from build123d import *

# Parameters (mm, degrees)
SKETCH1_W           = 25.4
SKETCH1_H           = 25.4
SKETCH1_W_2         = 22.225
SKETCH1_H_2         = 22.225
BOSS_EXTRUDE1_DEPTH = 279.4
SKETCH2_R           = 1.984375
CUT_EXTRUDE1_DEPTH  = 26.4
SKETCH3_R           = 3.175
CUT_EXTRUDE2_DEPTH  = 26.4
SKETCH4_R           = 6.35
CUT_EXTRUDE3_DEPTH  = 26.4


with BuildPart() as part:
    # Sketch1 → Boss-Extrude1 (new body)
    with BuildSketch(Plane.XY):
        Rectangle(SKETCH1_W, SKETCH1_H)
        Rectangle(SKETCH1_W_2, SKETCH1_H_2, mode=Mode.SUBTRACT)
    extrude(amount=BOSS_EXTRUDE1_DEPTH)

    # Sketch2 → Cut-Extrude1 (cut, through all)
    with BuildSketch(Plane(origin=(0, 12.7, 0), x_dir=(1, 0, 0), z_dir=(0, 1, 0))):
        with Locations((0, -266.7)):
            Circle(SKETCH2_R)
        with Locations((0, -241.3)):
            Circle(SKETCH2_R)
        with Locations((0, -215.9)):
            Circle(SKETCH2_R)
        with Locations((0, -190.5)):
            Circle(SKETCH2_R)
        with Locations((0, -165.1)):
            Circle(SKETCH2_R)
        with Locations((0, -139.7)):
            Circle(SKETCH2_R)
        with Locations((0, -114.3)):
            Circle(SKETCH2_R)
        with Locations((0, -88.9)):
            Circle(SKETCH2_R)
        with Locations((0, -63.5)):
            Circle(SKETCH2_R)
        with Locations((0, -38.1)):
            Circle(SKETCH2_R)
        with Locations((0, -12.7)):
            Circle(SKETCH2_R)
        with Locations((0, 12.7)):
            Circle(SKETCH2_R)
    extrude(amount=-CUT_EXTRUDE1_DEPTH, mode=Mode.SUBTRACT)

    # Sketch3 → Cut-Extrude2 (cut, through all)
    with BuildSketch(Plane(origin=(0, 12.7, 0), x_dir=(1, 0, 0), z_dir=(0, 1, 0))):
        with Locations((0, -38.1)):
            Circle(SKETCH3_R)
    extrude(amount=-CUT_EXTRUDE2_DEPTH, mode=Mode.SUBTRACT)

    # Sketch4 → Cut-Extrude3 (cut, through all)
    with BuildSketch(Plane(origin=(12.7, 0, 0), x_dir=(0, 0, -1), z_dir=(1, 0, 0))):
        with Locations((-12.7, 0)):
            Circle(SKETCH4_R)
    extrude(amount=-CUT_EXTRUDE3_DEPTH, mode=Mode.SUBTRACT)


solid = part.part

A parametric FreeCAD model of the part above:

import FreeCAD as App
import Part
import Sketcher
Q = App.Units.Quantity


def add_polygon(sketch, points):
    """Adds a closed chain of lines whose ends are joined by coincident constraints."""
    first, n = sketch.GeometryCount, len(points)
    for a, b in zip(points, points[1:] + points[:1]):
        sketch.addGeometry(Part.LineSegment(App.Vector(*a, 0), App.Vector(*b, 0)), False)
    for i in range(n):
        sketch.addConstraint(Sketcher.Constraint("Coincident", first + i, 2, first + (i + 1) % n, 1))

doc = App.newDocument("Part")
body = doc.addObject("PartDesign::Body", "Body")

# Sketch on XY plane
sketch1 = doc.addObject("Sketcher::SketchObject", "Sketch")
body.addObject(sketch1)
sketch1.AttachmentSupport = (doc.XY_Plane, [""])
sketch1.MapMode = "FlatFace"
add_polygon(sketch1, [(-12.7, 12.7), (-12.7, -12.7), (12.7, -12.7), (12.7, 12.7)])  # lines 0-3
add_polygon(sketch1, [(11.1125, -11.1125), (-11.1125, -11.1125), (-11.1125, 11.1125), (11.1125, 11.1125)])  # lines 4-7
sketch1.addConstraint(Sketcher.Constraint("Vertical", 0))
sketch1.addConstraint(Sketcher.Constraint("Horizontal", 1))
sketch1.addConstraint(Sketcher.Constraint("Vertical", 2))
sketch1.addConstraint(Sketcher.Constraint("Horizontal", 3))
sketch1.addConstraint(Sketcher.Constraint("Horizontal", 4))
sketch1.addConstraint(Sketcher.Constraint("Vertical", 5))
sketch1.addConstraint(Sketcher.Constraint("Horizontal", 6))
sketch1.addConstraint(Sketcher.Constraint("Vertical", 7))
sketch1.addConstraint(Sketcher.Constraint("Symmetric", 0, 2, 2, 2, -1, 1))
sketch1.addConstraint(Sketcher.Constraint("Symmetric", 4, 2, 6, 2, -1, 1))
sketch1.addConstraint(Sketcher.Constraint("Equal", 3, 0))
sketch1.addConstraint(Sketcher.Constraint("Equal", 6, 5))
sketch1.addConstraint(Sketcher.Constraint("DistanceX", 1, 1, 1, 2, Q("1 in")))
sketch1.addConstraint(Sketcher.Constraint("DistanceX", 4, 2, 4, 1, Q("0.875 in")))
pad1 = doc.addObject("PartDesign::Pad", "Pad")
body.addObject(pad1)
pad1.Profile = sketch1
pad1.Length = Q("11 in")

# Sketch on XZ plane
sketch2 = doc.addObject("Sketcher::SketchObject", "Sketch001")
body.addObject(sketch2)
sketch2.AttachmentSupport = (doc.XZ_Plane, [""])
sketch2.MapMode = "FlatFace"
sketch2.AttachmentOffset = App.Placement(App.Vector(0, 0, -0.5 * 25.4), App.Rotation())
sketch2.addGeometry(Part.Circle(App.Vector(0, 266.7, 0), App.Vector(0, 0, 1), 1.984375), False)
sketch2.addGeometry(Part.Circle(App.Vector(0, 241.3, 0), App.Vector(0, 0, 1), 1.984375), False)
sketch2.addGeometry(Part.Circle(App.Vector(0, 215.9, 0), App.Vector(0, 0, 1), 1.984375), False)
sketch2.addGeometry(Part.Circle(App.Vector(0, 190.5, 0), App.Vector(0, 0, 1), 1.984375), False)
sketch2.addGeometry(Part.Circle(App.Vector(0, 165.1, 0), App.Vector(0, 0, 1), 1.984375), False)
sketch2.addGeometry(Part.Circle(App.Vector(0, 139.7, 0), App.Vector(0, 0, 1), 1.984375), False)
sketch2.addGeometry(Part.Circle(App.Vector(0, 114.3, 0), App.Vector(0, 0, 1), 1.984375), False)
sketch2.addGeometry(Part.Circle(App.Vector(0, 88.9, 0), App.Vector(0, 0, 1), 1.984375), False)
sketch2.addGeometry(Part.Circle(App.Vector(0, 63.5, 0), App.Vector(0, 0, 1), 1.984375), False)
sketch2.addGeometry(Part.Circle(App.Vector(0, 38.1, 0), App.Vector(0, 0, 1), 1.984375), False)
sketch2.addGeometry(Part.Circle(App.Vector(0, 12.7, 0), App.Vector(0, 0, 1), 1.984375), False)
sketch2.addGeometry(Part.Circle(App.Vector(0, -12.7, 0), App.Vector(0, 0, 1), 1.984375), False)
sketch2.addConstraint(Sketcher.Constraint("Equal", 0, 1))
sketch2.addConstraint(Sketcher.Constraint("Equal", 1, 2))
sketch2.addConstraint(Sketcher.Constraint("Equal", 2, 3))
sketch2.addConstraint(Sketcher.Constraint("Equal", 3, 4))
sketch2.addConstraint(Sketcher.Constraint("Equal", 4, 5))
sketch2.addConstraint(Sketcher.Constraint("Equal", 5, 6))
sketch2.addConstraint(Sketcher.Constraint("Equal", 6, 7))
sketch2.addConstraint(Sketcher.Constraint("Equal", 7, 8))
sketch2.addConstraint(Sketcher.Constraint("Equal", 8, 9))
sketch2.addConstraint(Sketcher.Constraint("Equal", 9, 10))
sketch2.addConstraint(Sketcher.Constraint("Equal", 10, 11))
sketch2.addConstraint(Sketcher.Constraint("Symmetric", 10, 3, 11, 3, -1, 1))
sketch2.addConstraint(Sketcher.Constraint("PointOnObject", 0, 3, -2))
sketch2.addConstraint(Sketcher.Constraint("PointOnObject", 1, 3, -2))
sketch2.addConstraint(Sketcher.Constraint("PointOnObject", 2, 3, -2))
sketch2.addConstraint(Sketcher.Constraint("PointOnObject", 3, 3, -2))
sketch2.addConstraint(Sketcher.Constraint("PointOnObject", 4, 3, -2))
sketch2.addConstraint(Sketcher.Constraint("PointOnObject", 5, 3, -2))
sketch2.addConstraint(Sketcher.Constraint("PointOnObject", 6, 3, -2))
sketch2.addConstraint(Sketcher.Constraint("PointOnObject", 7, 3, -2))
sketch2.addConstraint(Sketcher.Constraint("PointOnObject", 8, 3, -2))
sketch2.addConstraint(Sketcher.Constraint("PointOnObject", 9, 3, -2))
sketch2.addConstraint(Sketcher.Constraint("PointOnObject", 10, 3, -2))
sketch2.addConstraint(Sketcher.Constraint("Diameter", 0, Q("0.15625 in")))
sketch2.addConstraint(Sketcher.Constraint("DistanceY", 1, 3, 0, 3, Q("1 in")))
sketch2.addConstraint(Sketcher.Constraint("DistanceY", 2, 3, 1, 3, Q("1 in")))
sketch2.addConstraint(Sketcher.Constraint("DistanceY", 3, 3, 2, 3, Q("1 in")))
sketch2.addConstraint(Sketcher.Constraint("DistanceY", 4, 3, 3, 3, Q("1 in")))
sketch2.addConstraint(Sketcher.Constraint("DistanceY", 5, 3, 4, 3, Q("1 in")))
sketch2.addConstraint(Sketcher.Constraint("DistanceY", 6, 3, 5, 3, Q("1 in")))
sketch2.addConstraint(Sketcher.Constraint("DistanceY", 7, 3, 6, 3, Q("1 in")))
sketch2.addConstraint(Sketcher.Constraint("DistanceY", 8, 3, 7, 3, Q("1 in")))
sketch2.addConstraint(Sketcher.Constraint("DistanceY", 9, 3, 8, 3, Q("1 in")))
sketch2.addConstraint(Sketcher.Constraint("DistanceY", 10, 3, 9, 3, Q("1 in")))
sketch2.addConstraint(Sketcher.Constraint("DistanceY", 11, 3, 10, 3, Q("1 in")))
pocket1 = doc.addObject("PartDesign::Pocket", "Pocket")
body.addObject(pocket1)
pocket1.Profile = sketch2
pocket1.Type = "ThroughAll"
pocket1.Reversed = True

# Sketch on XZ plane
sketch3 = doc.addObject("Sketcher::SketchObject", "Sketch002")
body.addObject(sketch3)
sketch3.AttachmentSupport = (doc.XZ_Plane, [""])
sketch3.MapMode = "FlatFace"
sketch3.AttachmentOffset = App.Placement(App.Vector(0, 0, -0.5 * 25.4), App.Rotation())
sketch3.addGeometry(Part.Circle(App.Vector(0, 38.1, 0), App.Vector(0, 0, 1), 3.175), False)
sketch3.addConstraint(Sketcher.Constraint("PointOnObject", 0, 3, -2))
sketch3.addConstraint(Sketcher.Constraint("Diameter", 0, Q("0.25 in")))
sketch3.addConstraint(Sketcher.Constraint("DistanceY", -1, 1, 0, 3, Q("1.5 in")))
pocket2 = doc.addObject("PartDesign::Pocket", "Pocket001")
body.addObject(pocket2)
pocket2.Profile = sketch3
pocket2.Type = "ThroughAll"
pocket2.Reversed = True

# Sketch on YZ plane
sketch4 = doc.addObject("Sketcher::SketchObject", "Sketch003")
body.addObject(sketch4)
sketch4.AttachmentSupport = (doc.YZ_Plane, [""])
sketch4.MapMode = "FlatFace"
sketch4.AttachmentOffset = App.Placement(App.Vector(0, 0, 0.5 * 25.4), App.Rotation())
sketch4.addGeometry(Part.Circle(App.Vector(0, 12.7, 0), App.Vector(0, 0, 1), 6.35), False)
sketch4.addConstraint(Sketcher.Constraint("PointOnObject", 0, 3, -2))
sketch4.addConstraint(Sketcher.Constraint("Diameter", 0, Q("0.5 in")))
sketch4.addConstraint(Sketcher.Constraint("DistanceY", -1, 1, 0, 3, Q("0.5 in")))
pocket3 = doc.addObject("PartDesign::Pocket", "Pocket002")
body.addObject(pocket3)
pocket3.Profile = sketch4
pocket3.Type = "ThroughAll"

doc.recompute()
